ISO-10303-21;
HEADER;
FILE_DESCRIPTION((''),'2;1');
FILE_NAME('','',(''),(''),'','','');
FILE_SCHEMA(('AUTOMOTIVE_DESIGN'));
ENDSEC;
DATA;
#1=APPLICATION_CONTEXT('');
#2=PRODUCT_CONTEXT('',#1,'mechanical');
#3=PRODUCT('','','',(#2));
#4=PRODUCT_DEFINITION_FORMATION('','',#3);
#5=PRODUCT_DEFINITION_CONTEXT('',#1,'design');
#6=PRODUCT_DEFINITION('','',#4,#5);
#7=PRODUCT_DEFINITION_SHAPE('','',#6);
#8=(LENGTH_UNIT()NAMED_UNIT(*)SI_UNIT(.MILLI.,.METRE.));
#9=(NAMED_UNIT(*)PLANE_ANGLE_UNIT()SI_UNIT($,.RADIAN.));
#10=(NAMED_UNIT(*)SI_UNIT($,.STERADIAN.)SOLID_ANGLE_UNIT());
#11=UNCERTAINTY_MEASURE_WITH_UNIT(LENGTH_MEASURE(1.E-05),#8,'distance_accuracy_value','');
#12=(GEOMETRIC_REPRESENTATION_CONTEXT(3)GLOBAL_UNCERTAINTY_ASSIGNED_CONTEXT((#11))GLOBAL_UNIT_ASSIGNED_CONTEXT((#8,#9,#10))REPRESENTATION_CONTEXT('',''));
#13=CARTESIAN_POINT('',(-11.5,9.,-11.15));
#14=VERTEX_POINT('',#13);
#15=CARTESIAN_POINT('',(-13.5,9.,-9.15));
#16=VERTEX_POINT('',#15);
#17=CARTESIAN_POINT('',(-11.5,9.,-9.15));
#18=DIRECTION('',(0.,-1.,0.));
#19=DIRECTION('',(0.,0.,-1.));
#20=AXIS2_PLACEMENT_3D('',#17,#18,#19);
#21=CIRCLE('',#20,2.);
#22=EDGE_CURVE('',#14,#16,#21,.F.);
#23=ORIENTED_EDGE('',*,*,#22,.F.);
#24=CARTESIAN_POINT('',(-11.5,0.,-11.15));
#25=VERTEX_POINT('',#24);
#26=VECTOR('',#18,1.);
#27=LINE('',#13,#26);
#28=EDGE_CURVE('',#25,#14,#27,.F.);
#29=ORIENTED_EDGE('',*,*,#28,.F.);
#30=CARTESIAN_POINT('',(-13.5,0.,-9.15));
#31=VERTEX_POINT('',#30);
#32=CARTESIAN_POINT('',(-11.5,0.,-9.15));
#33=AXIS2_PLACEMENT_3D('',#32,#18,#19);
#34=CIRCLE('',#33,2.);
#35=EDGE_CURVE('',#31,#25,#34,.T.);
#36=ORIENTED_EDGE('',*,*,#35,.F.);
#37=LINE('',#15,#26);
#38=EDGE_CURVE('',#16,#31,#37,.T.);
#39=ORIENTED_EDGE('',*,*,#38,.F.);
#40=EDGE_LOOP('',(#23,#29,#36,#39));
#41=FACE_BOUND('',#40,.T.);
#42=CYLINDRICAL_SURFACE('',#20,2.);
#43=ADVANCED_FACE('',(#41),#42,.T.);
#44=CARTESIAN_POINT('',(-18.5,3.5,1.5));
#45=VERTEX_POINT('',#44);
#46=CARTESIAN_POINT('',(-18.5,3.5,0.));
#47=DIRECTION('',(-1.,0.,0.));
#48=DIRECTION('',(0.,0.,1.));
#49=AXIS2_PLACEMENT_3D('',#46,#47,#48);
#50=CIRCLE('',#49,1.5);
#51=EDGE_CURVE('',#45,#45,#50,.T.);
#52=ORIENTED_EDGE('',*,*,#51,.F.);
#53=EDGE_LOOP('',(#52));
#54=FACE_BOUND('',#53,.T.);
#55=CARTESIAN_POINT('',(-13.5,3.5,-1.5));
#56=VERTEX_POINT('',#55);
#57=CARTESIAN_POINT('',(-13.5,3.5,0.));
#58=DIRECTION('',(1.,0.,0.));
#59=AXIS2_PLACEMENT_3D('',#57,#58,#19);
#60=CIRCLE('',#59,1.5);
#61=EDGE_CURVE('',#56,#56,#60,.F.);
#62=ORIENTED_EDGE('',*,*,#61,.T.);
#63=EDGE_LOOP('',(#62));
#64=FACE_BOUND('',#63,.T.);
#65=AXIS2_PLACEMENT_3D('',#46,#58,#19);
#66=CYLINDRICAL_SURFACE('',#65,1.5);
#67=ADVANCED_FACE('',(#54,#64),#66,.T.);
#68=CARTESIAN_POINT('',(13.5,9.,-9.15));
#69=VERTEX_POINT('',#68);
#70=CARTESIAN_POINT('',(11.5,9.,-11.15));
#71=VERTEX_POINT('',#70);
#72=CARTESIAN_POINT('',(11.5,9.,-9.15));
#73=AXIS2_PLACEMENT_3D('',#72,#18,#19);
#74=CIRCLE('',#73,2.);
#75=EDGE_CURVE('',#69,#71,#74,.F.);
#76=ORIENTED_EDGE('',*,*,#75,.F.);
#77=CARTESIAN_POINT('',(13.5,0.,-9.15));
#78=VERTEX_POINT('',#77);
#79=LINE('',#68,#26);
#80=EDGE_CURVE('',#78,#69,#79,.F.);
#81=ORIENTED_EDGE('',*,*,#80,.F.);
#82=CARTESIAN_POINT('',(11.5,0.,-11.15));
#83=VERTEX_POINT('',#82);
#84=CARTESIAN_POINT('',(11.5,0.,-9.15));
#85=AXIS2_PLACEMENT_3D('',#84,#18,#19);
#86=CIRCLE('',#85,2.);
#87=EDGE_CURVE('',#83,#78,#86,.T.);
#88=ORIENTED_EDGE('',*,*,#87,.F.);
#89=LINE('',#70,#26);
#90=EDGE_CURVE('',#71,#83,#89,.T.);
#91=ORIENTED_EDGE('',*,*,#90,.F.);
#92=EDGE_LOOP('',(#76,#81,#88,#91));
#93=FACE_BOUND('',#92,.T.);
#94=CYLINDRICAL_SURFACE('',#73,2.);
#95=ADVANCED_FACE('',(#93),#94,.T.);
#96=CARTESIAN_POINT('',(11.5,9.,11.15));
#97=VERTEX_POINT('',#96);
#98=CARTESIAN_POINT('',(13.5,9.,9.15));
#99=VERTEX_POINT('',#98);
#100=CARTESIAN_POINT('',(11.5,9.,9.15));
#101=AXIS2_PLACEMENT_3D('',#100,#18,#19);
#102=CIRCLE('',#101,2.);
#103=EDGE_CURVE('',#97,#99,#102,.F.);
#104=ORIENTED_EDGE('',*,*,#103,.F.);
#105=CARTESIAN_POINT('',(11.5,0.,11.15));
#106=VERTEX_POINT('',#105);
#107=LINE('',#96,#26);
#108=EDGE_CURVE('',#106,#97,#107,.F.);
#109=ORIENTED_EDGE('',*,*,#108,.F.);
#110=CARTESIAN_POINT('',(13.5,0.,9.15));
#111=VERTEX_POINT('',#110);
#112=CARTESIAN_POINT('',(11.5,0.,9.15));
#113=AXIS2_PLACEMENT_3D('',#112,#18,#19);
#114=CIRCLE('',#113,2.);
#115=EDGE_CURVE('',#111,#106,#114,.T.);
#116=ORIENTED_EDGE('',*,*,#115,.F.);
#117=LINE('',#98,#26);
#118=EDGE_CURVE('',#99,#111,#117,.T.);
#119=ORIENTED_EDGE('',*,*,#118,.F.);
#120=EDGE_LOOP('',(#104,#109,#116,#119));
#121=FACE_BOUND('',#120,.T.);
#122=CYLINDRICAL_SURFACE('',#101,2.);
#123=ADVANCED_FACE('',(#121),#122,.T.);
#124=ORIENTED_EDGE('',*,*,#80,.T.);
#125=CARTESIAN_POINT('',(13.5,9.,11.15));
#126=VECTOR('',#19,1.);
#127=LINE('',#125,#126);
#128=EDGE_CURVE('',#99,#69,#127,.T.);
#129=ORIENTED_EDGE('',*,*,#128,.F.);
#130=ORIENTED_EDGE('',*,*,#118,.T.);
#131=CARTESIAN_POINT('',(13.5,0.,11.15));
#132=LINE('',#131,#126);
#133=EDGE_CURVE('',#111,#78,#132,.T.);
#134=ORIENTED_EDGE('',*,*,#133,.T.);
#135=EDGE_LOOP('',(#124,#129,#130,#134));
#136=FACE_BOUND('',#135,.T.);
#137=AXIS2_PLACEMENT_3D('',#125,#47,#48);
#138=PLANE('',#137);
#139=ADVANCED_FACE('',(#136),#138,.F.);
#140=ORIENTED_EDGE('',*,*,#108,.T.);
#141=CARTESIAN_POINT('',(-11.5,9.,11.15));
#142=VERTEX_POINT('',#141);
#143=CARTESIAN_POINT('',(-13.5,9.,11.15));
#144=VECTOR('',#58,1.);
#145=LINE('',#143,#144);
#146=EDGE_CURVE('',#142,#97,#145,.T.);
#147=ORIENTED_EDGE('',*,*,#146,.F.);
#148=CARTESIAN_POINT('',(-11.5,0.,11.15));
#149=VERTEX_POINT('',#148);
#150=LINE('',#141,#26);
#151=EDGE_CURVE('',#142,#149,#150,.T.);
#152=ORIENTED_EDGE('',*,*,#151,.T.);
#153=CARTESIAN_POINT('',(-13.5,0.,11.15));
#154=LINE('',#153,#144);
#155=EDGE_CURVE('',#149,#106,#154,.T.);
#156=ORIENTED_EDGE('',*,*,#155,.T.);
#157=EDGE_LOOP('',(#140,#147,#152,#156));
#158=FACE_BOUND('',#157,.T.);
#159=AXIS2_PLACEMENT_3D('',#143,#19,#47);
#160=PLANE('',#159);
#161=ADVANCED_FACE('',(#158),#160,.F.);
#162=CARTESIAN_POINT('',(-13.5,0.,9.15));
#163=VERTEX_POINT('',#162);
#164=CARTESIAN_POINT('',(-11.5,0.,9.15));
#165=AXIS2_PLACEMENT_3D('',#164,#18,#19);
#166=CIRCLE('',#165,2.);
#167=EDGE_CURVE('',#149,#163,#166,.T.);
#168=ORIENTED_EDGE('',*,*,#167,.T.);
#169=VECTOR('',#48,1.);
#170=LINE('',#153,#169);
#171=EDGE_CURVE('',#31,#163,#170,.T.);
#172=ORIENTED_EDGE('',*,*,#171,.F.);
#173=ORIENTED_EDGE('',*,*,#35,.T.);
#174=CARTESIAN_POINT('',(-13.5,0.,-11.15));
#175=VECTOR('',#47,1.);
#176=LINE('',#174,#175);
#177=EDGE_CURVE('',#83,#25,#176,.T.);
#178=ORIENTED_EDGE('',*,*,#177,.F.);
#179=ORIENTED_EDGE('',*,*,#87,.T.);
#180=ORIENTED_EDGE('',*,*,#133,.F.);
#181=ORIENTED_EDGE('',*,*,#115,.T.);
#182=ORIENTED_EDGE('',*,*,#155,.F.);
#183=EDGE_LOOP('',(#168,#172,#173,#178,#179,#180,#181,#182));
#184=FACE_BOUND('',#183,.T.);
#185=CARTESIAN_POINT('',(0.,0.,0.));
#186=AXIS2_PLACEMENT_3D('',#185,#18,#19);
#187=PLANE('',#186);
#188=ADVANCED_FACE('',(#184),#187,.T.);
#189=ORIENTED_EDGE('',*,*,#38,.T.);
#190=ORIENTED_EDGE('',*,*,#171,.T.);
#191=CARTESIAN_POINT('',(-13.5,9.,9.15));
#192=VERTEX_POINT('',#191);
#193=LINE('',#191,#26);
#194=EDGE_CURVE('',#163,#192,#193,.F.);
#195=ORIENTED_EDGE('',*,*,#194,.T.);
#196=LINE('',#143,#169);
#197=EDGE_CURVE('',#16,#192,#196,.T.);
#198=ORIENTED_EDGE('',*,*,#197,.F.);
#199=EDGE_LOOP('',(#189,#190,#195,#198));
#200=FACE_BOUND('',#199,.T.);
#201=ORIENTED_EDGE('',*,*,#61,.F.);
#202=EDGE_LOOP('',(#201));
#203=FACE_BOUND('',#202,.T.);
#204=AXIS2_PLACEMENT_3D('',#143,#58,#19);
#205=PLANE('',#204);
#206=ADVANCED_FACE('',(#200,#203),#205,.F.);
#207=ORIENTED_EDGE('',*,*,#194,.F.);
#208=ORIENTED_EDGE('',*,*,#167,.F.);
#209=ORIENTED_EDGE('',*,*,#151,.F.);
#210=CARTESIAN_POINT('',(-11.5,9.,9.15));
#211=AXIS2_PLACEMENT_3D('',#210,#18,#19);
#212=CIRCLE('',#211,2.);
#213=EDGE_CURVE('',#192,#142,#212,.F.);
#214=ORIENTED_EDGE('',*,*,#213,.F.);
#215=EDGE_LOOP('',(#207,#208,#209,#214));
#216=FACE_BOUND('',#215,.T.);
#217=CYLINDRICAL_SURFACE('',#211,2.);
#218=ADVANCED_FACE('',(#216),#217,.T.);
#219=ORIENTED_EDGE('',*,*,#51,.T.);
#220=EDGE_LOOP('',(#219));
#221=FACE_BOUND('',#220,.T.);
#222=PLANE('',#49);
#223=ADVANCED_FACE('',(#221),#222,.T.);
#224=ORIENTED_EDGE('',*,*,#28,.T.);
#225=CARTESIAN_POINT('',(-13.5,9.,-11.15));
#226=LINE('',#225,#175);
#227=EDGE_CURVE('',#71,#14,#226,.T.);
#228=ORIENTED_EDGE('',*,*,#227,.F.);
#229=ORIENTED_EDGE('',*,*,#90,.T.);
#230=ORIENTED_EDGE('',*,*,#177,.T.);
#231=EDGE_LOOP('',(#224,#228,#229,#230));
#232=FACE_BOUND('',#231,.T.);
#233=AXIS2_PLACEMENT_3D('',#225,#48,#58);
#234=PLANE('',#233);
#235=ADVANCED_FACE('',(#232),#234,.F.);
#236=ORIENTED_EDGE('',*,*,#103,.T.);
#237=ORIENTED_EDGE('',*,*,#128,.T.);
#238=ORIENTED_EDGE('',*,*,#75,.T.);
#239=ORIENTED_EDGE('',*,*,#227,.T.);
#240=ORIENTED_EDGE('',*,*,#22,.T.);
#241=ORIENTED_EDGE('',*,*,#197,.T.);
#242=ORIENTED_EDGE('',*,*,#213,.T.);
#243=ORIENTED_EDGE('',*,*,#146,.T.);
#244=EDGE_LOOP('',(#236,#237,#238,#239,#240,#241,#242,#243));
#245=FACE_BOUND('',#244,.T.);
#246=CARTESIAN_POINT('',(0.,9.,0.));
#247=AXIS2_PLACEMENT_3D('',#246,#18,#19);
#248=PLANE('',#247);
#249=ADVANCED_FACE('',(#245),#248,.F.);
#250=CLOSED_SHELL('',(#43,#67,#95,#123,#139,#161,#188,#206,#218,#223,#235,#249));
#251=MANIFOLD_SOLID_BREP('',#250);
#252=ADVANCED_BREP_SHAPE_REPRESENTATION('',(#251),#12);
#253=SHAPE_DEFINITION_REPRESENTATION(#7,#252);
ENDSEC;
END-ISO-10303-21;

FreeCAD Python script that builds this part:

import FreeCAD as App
import Part
import Sketcher


def edges_at(feature, points):
    """Names of the edges that pass closest to the given points."""
    edges = feature.Shape.Edges
    near = lambda p: min(range(len(edges)), key=lambda i: edges[i].distToShape(Part.Vertex(*p))[0])
    return sorted({f"Edge{near(p) + 1}" for p in points})


def add_polygon(sketch, points):
    """Adds a closed chain of lines whose ends are joined by coincident constraints."""
    first, n = sketch.GeometryCount, len(points)
    for a, b in zip(points, points[1:] + points[:1]):
        sketch.addGeometry(Part.LineSegment(App.Vector(*a, 0), App.Vector(*b, 0)), False)
    for i in range(n):
        sketch.addConstraint(Sketcher.Constraint("Coincident", first + i, 2, first + (i + 1) % n, 1))

doc = App.newDocument("Part")
body = doc.addObject("PartDesign::Body", "Body")

sketch1 = body.newObject("Sketcher::SketchObject", "Sketch")
sketch1.AttachmentSupport = (doc.getObject("XZ_Plane"), [""])
sketch1.MapMode = "FlatFace"
add_polygon(sketch1, [(-14, -11), (-14, 11), (14, 11), (14, -11)])
sketch1.addConstraint([
    Sketcher.Constraint("Vertical", 0),
    Sketcher.Constraint("Horizontal", 1),
    Sketcher.Constraint("Vertical", 2),
    Sketcher.Constraint("Horizontal", 3),
    Sketcher.Constraint("Symmetric", 0, 2, 2, 2, -1, 1),
    Sketcher.Constraint("DistanceX", 1, 1, 1, 2, 27.0),
    Sketcher.Constraint("DistanceY", 0, 1, 0, 2, 22.3),
])
pad1 = body.newObject("PartDesign::Pad", "Pad")
pad1.Profile = sketch1
pad1.Length = 9
pad1.Reversed = True

sketch2 = body.newObject("Sketcher::SketchObject", "Sketch001")
sketch2.AttachmentSupport = (doc.getObject("YZ_Plane"), [""])
sketch2.MapMode = "FlatFace"
sketch2.AttachmentOffset = App.Placement(App.Vector(0, 0, -13.5), App.Rotation())
sketch2.addGeometry(Part.Circle(App.Vector(3.5, 0, 0), App.Vector(0, 0, 1), 1.5), False)
sketch2.addConstraint([
    Sketcher.Constraint("PointOnObject", 0, 3, -1),
    Sketcher.Constraint("Diameter", 0, 3.0),
    Sketcher.Constraint("DistanceX", -1, 1, 0, 3, 3.5),
])
pad2 = body.newObject("PartDesign::Pad", "Pad001")
pad2.Profile = sketch2
pad2.Length = 5
pad2.Reversed = True
doc.recompute()

fillet = body.newObject("PartDesign::Fillet", "Fillet")
fillet.Base = (pad2, edges_at(pad2, [
    (13.5, 4.5, 11.15),
    (-13.5, 4.5, 11.15),
    (-13.5, 4.5, -11.15),
    (13.5, 4.5, -11.15),
]))
fillet.Radius = 2

doc.recompute()
